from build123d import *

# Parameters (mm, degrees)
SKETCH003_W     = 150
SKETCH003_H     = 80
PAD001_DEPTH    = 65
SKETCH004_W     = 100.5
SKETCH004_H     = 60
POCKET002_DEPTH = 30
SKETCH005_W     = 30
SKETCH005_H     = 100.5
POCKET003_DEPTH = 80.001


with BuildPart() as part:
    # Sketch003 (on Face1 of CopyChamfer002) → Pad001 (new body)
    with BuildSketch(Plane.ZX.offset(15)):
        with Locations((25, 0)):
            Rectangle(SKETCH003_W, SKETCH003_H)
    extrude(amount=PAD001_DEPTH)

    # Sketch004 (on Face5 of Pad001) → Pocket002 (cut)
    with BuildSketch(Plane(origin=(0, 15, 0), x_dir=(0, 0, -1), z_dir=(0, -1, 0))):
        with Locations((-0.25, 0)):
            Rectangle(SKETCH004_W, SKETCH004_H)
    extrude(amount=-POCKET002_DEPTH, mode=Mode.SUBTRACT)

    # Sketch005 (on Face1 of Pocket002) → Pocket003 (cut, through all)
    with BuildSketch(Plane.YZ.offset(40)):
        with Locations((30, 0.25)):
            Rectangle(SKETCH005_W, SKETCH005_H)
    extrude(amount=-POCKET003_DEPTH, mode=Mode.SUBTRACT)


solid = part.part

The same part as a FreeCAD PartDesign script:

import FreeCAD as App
import Part
import Sketcher

V = App.Vector
Q = App.Units.Quantity


def add_polygon(sketch, points):
    """Adds a closed chain of lines whose ends are joined by coincident constraints."""
    first, n = sketch.GeometryCount, len(points)
    for a, b in zip(points, points[1:] + points[:1]):
        sketch.addGeometry(Part.LineSegment(App.Vector(*a, 0), App.Vector(*b, 0)), False)
    for i in range(n):
        sketch.addConstraint(Sketcher.Constraint("Coincident", first + i, 2, first + (i + 1) % n, 1))

doc = App.newDocument("Part")
params = doc.addObject("Spreadsheet::Sheet", "Params")
for row, (alias, value) in enumerate([
    ("sketch1_width", "80 mm"),
    ("sketch1_height", "150 mm"),
    ("pad1_length", "65 mm"),
    ("sketch2_width", "60 mm"),
    ("sketch2_height", "100.5 mm"),
    ("pocket1_length", "30 mm"),
    ("sketch3_width", "30 mm"),
    ("sketch3_height", "100.5 mm"),
], start=1):
    params.set(f"A{row}", alias)
    params.set(f"B{row}", "=" + value)
    params.setAlias(f"B{row}", alias)

body = doc.addObject("PartDesign::Body", "Body")

# Sketch on XZ plane
sketch1 = doc.addObject("Sketcher::SketchObject", "Sketch")
body.addObject(sketch1)
sketch1.AttachmentSupport = (doc.XZ_Plane, [""])
sketch1.MapMode = "FlatFace"
sketch1.AttachmentOffset = App.Placement(V(0, 0, -15), App.Rotation())
add_polygon(sketch1, [(40, -50), (-40, -50), (-40, 100), (40, 100)])  # lines 0-3
sketch1.addConstraint([
    Sketcher.Constraint("Horizontal", 0),
    Sketcher.Constraint("Vertical", 1),
    Sketcher.Constraint("Horizontal", 2),
    Sketcher.Constraint("Vertical", 3),
    Sketcher.Constraint("DistanceX", 0, 2, 0, 1, Q("80 mm")),
    Sketcher.Constraint("DistanceY", 1, 1, 1, 2, Q("150 mm")),
    Sketcher.Constraint("DistanceX", 0, 2, -1, 1, Q("40 mm")),
    Sketcher.Constraint("DistanceY", 0, 2, -1, 1, Q("50 mm")),
])
sketch1.setExpression("Constraints[8]", "Params.sketch1_width")
sketch1.setExpression("Constraints[9]", "Params.sketch1_height")
pad1 = doc.addObject("PartDesign::Pad", "Pad")
body.addObject(pad1)
pad1.Profile = sketch1
pad1.setExpression("Length", "Params.pad1_length")
pad1.Reversed = True

# Sketch on XZ plane
sketch2 = doc.addObject("Sketcher::SketchObject", "Sketch001")
body.addObject(sketch2)
sketch2.AttachmentSupport = (doc.XZ_Plane, [""])
sketch2.MapMode = "FlatFace"
sketch2.AttachmentOffset = App.Placement(V(0, 0, -15), App.Rotation())
add_polygon(sketch2, [(30, 50.5), (-30, 50.5), (-30, -50), (30, -50)])  # lines 0-3
sketch2.addConstraint([
    Sketcher.Constraint("Horizontal", 0),
    Sketcher.Constraint("Vertical", 1),
    Sketcher.Constraint("Horizontal", 2),
    Sketcher.Constraint("Vertical", 3),
    Sketcher.Constraint("DistanceX", 0, 2, 0, 1, Q("60 mm")),
    Sketcher.Constraint("DistanceY", 1, 2, 1, 1, Q("100.5 mm")),
    Sketcher.Constraint("DistanceX", 0, 2, -1, 1, Q("30 mm")),
    Sketcher.Constraint("DistanceY", 1, 2, -1, 1, Q("50 mm")),
])
sketch2.setExpression("Constraints[8]", "Params.sketch2_width")
sketch2.setExpression("Constraints[9]", "Params.sketch2_height")
pocket1 = doc.addObject("PartDesign::Pocket", "Pocket")
body.addObject(pocket1)
pocket1.Profile = sketch2
pocket1.setExpression("Length", "Params.pocket1_length")

# Sketch on YZ plane
sketch3 = doc.addObject("Sketcher::SketchObject", "Sketch002")
body.addObject(sketch3)
sketch3.AttachmentSupport = (doc.YZ_Plane, [""])
sketch3.MapMode = "FlatFace"
sketch3.AttachmentOffset = App.Placement(V(0, 0, 40), App.Rotation())
add_polygon(sketch3, [(15, 50.5), (15, -50), (45, -50), (45, 50.5)])  # lines 0-3
sketch3.addConstraint([
    Sketcher.Constraint("Vertical", 0),
    Sketcher.Constraint("Horizontal", 1),
    Sketcher.Constraint("Vertical", 2),
    Sketcher.Constraint("Horizontal", 3),
    Sketcher.Constraint("DistanceX", 1, 1, 1, 2, Q("30 mm")),
    Sketcher.Constraint("DistanceY", 0, 2, 0, 1, Q("100.5 mm")),
    Sketcher.Constraint("DistanceX", -1, 1, 0, 2, Q("15 mm")),
    Sketcher.Constraint("DistanceY", 0, 2, -1, 1, Q("50 mm")),
])
sketch3.setExpression("Constraints[8]", "Params.sketch3_width")
sketch3.setExpression("Constraints[9]", "Params.sketch3_height")
pocket2 = doc.addObject("PartDesign::Pocket", "Pocket001")
body.addObject(pocket2)
pocket2.Profile = sketch3
pocket2.Type = "ThroughAll"

doc.recompute()
